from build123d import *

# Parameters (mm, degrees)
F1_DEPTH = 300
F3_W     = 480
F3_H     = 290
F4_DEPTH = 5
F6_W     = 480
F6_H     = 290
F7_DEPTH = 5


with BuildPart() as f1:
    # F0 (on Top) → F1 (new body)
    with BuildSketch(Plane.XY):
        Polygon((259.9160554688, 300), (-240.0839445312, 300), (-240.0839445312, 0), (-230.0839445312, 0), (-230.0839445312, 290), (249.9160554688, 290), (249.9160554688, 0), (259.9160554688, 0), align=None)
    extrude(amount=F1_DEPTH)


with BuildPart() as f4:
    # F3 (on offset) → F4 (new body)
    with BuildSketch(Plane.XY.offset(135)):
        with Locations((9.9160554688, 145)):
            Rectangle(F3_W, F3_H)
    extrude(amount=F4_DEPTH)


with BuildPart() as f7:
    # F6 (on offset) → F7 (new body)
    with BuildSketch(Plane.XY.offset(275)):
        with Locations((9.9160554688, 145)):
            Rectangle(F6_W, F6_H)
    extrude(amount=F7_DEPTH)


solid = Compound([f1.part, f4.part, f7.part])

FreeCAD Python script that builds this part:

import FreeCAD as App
import Part
import Sketcher


def add_polygon(sketch, points):
    """Adds a closed chain of lines whose ends are joined by coincident constraints."""
    first, n = sketch.GeometryCount, len(points)
    for a, b in zip(points, points[1:] + points[:1]):
        sketch.addGeometry(Part.LineSegment(App.Vector(*a, 0), App.Vector(*b, 0)), False)
    for i in range(n):
        sketch.addConstraint(Sketcher.Constraint("Coincident", first + i, 2, first + (i + 1) % n, 1))

doc = App.newDocument("Part")
body = doc.addObject("PartDesign::Body", "Body")

sketch1 = body.newObject("Sketcher::SketchObject", "Sketch")
sketch1.AttachmentSupport = (doc.getObject("XY_Plane"), [""])
sketch1.MapMode = "FlatFace"
add_polygon(sketch1, [(259.916055, 300), (-240.083945, 300), (-240.083945, 0), (-230.083945, 0), (-230.083945, 290), (249.916055, 290), (249.916055, 0), (259.916055, 0)])
sketch1.addConstraint(Sketcher.Constraint("Horizontal", 0))
sketch1.addConstraint(Sketcher.Constraint("Vertical", 1))
sketch1.addConstraint(Sketcher.Constraint("Horizontal", 2))
sketch1.addConstraint(Sketcher.Constraint("Vertical", 3))
sketch1.addConstraint(Sketcher.Constraint("Horizontal", 4))
sketch1.addConstraint(Sketcher.Constraint("Vertical", 5))
sketch1.addConstraint(Sketcher.Constraint("Horizontal", 6))
sketch1.addConstraint(Sketcher.Constraint("Vertical", 7))
sketch1.addConstraint(Sketcher.Constraint("PointOnObject", 1, 2, -1))
sketch1.addConstraint(Sketcher.Constraint("PointOnObject", 5, 2, -1))
sketch1.addConstraint(Sketcher.Constraint("Equal", 2, 6))
sketch1.addConstraint(Sketcher.Constraint("DistanceX", 0, 2, 0, 1, 500.0))
sketch1.addConstraint(Sketcher.Constraint("DistanceX", 2, 1, 2, 2, 10.0))
sketch1.addConstraint(Sketcher.Constraint("DistanceY", 1, 2, 1, 1, 300.0))
sketch1.addConstraint(Sketcher.Constraint("DistanceY", 3, 1, 3, 2, 290.0))
sketch1.addConstraint(Sketcher.Constraint("DistanceX", 0, 2, -1, 1, 240.083945))
pad1 = body.newObject("PartDesign::Pad", "Pad")
pad1.Profile = sketch1
pad1.Length = 300
body2 = doc.addObject("PartDesign::Body", "Body001")

sketch2 = body2.newObject("Sketcher::SketchObject", "Sketch001")
sketch2.AttachmentSupport = (doc.getObject("XY_Plane001"), [""])
sketch2.MapMode = "FlatFace"
sketch2.AttachmentOffset = App.Placement(App.Vector(0, 0, 135), App.Rotation())
add_polygon(sketch2, [(-230.083945, 290), (-230.083945, 0), (249.916055, 0), (249.916055, 290)])
sketch2.addConstraint(Sketcher.Constraint("Vertical", 0))
sketch2.addConstraint(Sketcher.Constraint("Horizontal", 1))
sketch2.addConstraint(Sketcher.Constraint("Vertical", 2))
sketch2.addConstraint(Sketcher.Constraint("Horizontal", 3))
sketch2.addConstraint(Sketcher.Constraint("PointOnObject", 0, 2, -1))
sketch2.addConstraint(Sketcher.Constraint("DistanceX", 1, 1, 1, 2, 480.0))
sketch2.addConstraint(Sketcher.Constraint("DistanceY", 0, 2, 0, 1, 290.0))
sketch2.addConstraint(Sketcher.Constraint("DistanceX", 0, 2, -1, 1, 230.083945))
pad2 = body2.newObject("PartDesign::Pad", "Pad001")
pad2.Profile = sketch2
pad2.Length = 5
body3 = doc.addObject("PartDesign::Body", "Body002")

sketch3 = body3.newObject("Sketcher::SketchObject", "Sketch002")
sketch3.AttachmentSupport = (doc.getObject("XY_Plane002"), [""])
sketch3.MapMode = "FlatFace"
sketch3.AttachmentOffset = App.Placement(App.Vector(0, 0, 275), App.Rotation())
add_polygon(sketch3, [(-230.083945, 290), (-230.083945, 0), (249.916055, 0), (249.916055, 290)])
sketch3.addConstraint(Sketcher.Constraint("Vertical", 0))
sketch3.addConstraint(Sketcher.Constraint("Horizontal", 1))
sketch3.addConstraint(Sketcher.Constraint("Vertical", 2))
sketch3.addConstraint(Sketcher.Constraint("Horizontal", 3))
sketch3.addConstraint(Sketcher.Constraint("PointOnObject", 0, 2, -1))
sketch3.addConstraint(Sketcher.Constraint("DistanceX", 1, 1, 1, 2, 480.0))
sketch3.addConstraint(Sketcher.Constraint("DistanceY", 0, 2, 0, 1, 290.0))
sketch3.addConstraint(Sketcher.Constraint("DistanceX", 0, 2, -1, 1, 230.083945))
pad3 = body3.newObject("PartDesign::Pad", "Pad002")
pad3.Profile = sketch3
pad3.Length = 5

doc.recompute()
